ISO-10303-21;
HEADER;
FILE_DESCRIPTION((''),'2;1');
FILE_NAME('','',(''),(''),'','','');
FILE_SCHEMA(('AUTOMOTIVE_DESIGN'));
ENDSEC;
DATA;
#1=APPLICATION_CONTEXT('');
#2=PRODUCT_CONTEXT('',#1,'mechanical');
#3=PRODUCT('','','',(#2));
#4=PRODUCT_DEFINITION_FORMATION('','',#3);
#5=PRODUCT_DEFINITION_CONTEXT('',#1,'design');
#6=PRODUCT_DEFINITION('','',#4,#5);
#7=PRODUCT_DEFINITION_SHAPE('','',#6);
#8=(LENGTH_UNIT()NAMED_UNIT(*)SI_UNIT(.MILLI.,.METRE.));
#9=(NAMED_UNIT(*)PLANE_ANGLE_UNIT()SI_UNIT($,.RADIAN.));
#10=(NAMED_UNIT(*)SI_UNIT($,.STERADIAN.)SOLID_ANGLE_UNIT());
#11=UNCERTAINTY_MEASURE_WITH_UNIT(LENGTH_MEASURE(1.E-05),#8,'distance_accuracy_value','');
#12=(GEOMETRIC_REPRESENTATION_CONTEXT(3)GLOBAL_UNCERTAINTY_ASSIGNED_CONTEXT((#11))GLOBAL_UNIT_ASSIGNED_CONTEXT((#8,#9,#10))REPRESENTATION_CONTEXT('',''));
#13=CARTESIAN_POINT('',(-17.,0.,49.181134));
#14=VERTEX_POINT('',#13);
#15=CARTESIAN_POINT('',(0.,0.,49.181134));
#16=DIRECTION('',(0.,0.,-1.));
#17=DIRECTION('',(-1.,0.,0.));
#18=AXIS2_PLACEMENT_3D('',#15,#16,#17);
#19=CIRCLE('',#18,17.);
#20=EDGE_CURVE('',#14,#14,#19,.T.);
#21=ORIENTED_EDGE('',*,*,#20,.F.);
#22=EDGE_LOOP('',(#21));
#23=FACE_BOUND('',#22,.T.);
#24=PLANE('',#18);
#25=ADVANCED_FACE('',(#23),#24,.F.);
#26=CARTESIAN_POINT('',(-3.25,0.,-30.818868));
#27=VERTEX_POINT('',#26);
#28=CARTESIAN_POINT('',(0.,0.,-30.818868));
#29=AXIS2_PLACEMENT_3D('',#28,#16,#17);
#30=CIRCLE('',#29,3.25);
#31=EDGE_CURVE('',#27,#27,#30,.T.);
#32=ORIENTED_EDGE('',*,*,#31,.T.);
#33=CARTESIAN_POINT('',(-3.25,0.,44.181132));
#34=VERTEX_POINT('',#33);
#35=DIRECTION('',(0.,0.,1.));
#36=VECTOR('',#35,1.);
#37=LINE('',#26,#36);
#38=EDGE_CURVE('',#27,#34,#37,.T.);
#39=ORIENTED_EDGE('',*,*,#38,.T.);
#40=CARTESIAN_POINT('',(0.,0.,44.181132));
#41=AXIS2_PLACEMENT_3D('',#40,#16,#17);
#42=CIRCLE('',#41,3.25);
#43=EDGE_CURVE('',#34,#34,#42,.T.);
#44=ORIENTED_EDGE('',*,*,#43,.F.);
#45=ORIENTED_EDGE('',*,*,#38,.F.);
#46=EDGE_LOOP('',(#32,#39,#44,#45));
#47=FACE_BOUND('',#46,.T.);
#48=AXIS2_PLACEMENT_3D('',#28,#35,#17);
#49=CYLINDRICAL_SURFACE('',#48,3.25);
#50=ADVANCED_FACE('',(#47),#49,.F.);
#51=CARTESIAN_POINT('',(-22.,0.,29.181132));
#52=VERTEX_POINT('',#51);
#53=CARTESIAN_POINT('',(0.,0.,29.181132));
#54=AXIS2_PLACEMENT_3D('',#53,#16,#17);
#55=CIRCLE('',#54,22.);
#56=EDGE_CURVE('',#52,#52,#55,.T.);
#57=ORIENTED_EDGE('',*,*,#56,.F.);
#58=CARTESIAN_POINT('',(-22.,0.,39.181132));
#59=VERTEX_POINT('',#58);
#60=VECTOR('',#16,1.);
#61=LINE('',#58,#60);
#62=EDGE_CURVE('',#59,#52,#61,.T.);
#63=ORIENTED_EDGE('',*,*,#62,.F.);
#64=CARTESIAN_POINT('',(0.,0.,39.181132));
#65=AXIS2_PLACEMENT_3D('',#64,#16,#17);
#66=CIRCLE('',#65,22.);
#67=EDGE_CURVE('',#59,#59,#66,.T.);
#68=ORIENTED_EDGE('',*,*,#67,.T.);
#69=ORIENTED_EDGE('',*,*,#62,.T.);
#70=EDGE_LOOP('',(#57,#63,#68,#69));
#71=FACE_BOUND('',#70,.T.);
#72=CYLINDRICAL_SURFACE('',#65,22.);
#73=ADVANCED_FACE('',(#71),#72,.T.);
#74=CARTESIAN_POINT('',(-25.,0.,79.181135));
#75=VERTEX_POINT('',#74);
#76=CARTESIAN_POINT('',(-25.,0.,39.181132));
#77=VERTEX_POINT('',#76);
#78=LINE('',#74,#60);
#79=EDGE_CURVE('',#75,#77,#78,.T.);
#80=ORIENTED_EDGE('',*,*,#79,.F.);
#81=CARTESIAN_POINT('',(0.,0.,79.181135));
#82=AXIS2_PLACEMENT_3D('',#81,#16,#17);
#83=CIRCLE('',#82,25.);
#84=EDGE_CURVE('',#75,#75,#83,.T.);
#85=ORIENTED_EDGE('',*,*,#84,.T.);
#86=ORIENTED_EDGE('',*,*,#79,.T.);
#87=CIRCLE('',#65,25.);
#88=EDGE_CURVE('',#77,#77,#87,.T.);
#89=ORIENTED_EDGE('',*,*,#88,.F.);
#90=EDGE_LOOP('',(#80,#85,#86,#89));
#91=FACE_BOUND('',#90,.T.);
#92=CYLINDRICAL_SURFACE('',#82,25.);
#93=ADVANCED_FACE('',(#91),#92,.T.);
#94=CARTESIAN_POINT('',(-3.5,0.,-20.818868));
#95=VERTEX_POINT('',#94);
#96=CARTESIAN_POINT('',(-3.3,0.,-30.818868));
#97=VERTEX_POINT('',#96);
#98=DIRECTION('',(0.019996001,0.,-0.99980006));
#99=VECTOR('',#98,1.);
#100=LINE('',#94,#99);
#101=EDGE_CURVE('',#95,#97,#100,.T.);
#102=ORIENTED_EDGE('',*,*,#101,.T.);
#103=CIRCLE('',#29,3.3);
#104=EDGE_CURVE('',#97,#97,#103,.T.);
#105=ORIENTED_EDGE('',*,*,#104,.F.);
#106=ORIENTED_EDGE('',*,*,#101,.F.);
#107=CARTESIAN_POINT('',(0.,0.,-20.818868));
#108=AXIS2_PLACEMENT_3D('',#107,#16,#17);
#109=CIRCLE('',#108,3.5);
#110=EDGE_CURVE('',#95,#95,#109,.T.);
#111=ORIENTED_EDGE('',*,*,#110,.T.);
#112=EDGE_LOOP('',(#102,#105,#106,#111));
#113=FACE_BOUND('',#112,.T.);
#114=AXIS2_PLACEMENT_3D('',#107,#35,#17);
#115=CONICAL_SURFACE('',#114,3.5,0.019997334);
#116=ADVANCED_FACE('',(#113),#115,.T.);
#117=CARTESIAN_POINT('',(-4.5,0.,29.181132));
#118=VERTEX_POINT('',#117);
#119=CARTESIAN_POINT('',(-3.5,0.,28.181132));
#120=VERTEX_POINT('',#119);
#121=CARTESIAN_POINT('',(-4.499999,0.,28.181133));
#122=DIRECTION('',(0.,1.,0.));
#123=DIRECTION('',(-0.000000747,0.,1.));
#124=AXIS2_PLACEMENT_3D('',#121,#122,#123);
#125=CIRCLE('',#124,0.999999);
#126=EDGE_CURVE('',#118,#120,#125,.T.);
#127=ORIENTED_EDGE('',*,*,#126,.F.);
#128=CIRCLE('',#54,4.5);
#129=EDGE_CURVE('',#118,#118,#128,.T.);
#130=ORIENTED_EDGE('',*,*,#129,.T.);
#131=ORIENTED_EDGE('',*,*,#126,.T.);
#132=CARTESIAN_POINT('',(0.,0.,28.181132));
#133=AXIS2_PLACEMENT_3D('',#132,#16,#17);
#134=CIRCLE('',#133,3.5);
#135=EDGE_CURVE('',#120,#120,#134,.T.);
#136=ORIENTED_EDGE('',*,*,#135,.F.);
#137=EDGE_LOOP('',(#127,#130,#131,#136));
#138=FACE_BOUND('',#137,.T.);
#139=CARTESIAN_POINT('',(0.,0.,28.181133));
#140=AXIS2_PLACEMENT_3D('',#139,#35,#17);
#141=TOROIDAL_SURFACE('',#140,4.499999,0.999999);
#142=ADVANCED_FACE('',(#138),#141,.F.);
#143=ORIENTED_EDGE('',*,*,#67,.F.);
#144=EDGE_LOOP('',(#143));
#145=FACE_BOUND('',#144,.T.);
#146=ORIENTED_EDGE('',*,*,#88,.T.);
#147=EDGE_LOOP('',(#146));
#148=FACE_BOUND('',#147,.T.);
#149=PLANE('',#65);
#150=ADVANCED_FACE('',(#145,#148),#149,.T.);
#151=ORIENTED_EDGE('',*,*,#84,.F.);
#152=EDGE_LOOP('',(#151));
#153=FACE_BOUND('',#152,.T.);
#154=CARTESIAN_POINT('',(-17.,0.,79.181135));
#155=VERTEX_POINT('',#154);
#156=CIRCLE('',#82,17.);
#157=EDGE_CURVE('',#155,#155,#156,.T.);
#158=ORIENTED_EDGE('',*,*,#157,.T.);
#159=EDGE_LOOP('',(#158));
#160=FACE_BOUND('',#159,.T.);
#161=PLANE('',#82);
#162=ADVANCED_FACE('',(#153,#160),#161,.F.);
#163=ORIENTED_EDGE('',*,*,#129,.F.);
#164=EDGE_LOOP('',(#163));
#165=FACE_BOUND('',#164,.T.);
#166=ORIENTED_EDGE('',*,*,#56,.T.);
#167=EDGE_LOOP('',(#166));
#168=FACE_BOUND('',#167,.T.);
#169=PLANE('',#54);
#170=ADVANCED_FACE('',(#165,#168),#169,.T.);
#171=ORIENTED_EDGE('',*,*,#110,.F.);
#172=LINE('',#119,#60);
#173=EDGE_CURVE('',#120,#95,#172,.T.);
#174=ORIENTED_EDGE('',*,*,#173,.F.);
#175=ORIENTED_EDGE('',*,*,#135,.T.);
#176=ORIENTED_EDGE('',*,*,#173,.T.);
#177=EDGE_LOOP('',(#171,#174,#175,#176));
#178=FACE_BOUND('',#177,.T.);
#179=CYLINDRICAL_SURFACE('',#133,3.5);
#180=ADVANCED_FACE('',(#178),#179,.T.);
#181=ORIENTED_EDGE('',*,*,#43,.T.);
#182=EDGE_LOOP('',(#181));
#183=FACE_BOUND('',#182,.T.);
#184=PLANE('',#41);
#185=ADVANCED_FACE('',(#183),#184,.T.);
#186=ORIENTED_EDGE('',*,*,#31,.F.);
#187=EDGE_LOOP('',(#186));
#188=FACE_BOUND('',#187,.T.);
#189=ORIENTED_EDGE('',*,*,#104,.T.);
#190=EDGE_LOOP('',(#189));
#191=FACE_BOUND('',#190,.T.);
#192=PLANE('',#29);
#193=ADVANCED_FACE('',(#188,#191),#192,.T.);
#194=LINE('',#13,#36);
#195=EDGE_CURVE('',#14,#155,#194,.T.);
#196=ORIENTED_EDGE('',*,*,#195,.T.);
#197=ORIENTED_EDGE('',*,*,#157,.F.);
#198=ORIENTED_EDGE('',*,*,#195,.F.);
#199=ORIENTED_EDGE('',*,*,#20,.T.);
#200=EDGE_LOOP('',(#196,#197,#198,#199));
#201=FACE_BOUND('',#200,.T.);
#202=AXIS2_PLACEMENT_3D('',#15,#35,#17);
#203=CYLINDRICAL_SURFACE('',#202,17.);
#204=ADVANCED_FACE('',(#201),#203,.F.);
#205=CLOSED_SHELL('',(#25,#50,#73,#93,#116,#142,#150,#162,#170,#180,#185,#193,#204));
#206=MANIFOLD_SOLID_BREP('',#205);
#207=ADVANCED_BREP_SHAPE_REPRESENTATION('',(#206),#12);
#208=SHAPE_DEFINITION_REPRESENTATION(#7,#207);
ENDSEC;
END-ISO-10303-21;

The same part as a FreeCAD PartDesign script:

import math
import FreeCAD as App
import Part
import Sketcher
from FreeCAD import Vector


def edges_at(feature, points):
    """Names of the edges that pass closest to the given points."""
    edges = feature.Shape.Edges
    near = lambda p: min(range(len(edges)), key=lambda i: edges[i].distToShape(Part.Vertex(*p))[0])
    return sorted({f"Edge{near(p) + 1}" for p in points})

doc = App.newDocument("Part")
params = doc.addObject("Spreadsheet::Sheet", "Params")
for row, (alias, value) in enumerate([
    ("sketch1_radius", "0.999999 mm"),
    ("sketch1_width", "17 mm"),
    ("sketch1_width2", "8 mm"),
    ("sketch1_width3", "3 mm"),
    ("sketch1_height", "30.000001 mm"),
    ("revolution_angle", "360 deg"),
    ("chamfer_size", "10 mm"),
    ("chamfer_size2", "0.2 mm"),
], start=1):
    params.set(f"A{row}", alias)
    params.set(f"B{row}", "=" + value)
    params.setAlias(f"B{row}", alias)

body = doc.addObject("PartDesign::Body", "Body")

# Sketch on XZ plane
sketch1 = body.newObject("Sketcher::SketchObject", "Sketch")
sketch1.AttachmentSupport = (doc.getObject("XZ_Plane"), [""])
sketch1.MapMode = "FlatFace"
sketch1.addGeometry(Part.LineSegment(Vector(0, 44.18, 0), Vector(0, 49.18, 0)), False)
sketch1.addGeometry(Part.LineSegment(Vector(0, 49.18, 0), Vector(-17, 49.18, 0)), False)
sketch1.addGeometry(Part.LineSegment(Vector(-17, 49.18, 0), Vector(-17, 79.18, 0)), False)
sketch1.addGeometry(Part.LineSegment(Vector(-17, 79.18, 0), Vector(-25, 79.18, 0)), False)
sketch1.addGeometry(Part.LineSegment(Vector(-25, 79.18, 0), Vector(-25, 39.18, 0)), False)
sketch1.addGeometry(Part.LineSegment(Vector(-25, 39.18, 0), Vector(-22, 39.18, 0)), False)
sketch1.addGeometry(Part.LineSegment(Vector(-22, 39.18, 0), Vector(-22, 29.18, 0)), False)
sketch1.addGeometry(Part.LineSegment(Vector(-22, 29.18, 0), Vector(-4.5, 29.18, 0)), False)
sketch1.addGeometry(Part.ArcOfCircle(Part.Circle(Vector(-4.5, 28.18, 0), Vector(0, 0, 1), 1), math.radians(0), math.radians(90)), False)
sketch1.addGeometry(Part.LineSegment(Vector(-3.5, 28.18, 0), Vector(-3.5, -30.82, 0)), False)
sketch1.addGeometry(Part.LineSegment(Vector(-3.5, -30.82, 0), Vector(-3.25, -30.82, 0)), False)
sketch1.addGeometry(Part.LineSegment(Vector(-3.25, -30.82, 0), Vector(-3.25, 44.18, 0)), False)
sketch1.addGeometry(Part.LineSegment(Vector(-3.25, 44.18, 0), Vector(0, 44.18, 0)), False)
sketch1.addConstraint(Sketcher.Constraint("Coincident", 0, 2, 1, 1))
sketch1.addConstraint(Sketcher.Constraint("Coincident", 1, 2, 2, 1))
sketch1.addConstraint(Sketcher.Constraint("Coincident", 2, 2, 3, 1))
sketch1.addConstraint(Sketcher.Constraint("Coincident", 3, 2, 4, 1))
sketch1.addConstraint(Sketcher.Constraint("Coincident", 4, 2, 5, 1))
sketch1.addConstraint(Sketcher.Constraint("Coincident", 5, 2, 6, 1))
sketch1.addConstraint(Sketcher.Constraint("Coincident", 6, 2, 7, 1))
sketch1.addConstraint(Sketcher.Constraint("Tangent", 7, 2, 8, 2))
sketch1.addConstraint(Sketcher.Constraint("Tangent", 8, 1, 9, 1))
sketch1.addConstraint(Sketcher.Constraint("Coincident", 9, 2, 10, 1))
sketch1.addConstraint(Sketcher.Constraint("Coincident", 10, 2, 11, 1))
sketch1.addConstraint(Sketcher.Constraint("Coincident", 11, 2, 12, 1))
sketch1.addConstraint(Sketcher.Constraint("Coincident", 12, 2, 0, 1))
sketch1.addConstraint(Sketcher.Constraint("Vertical", 0))
sketch1.addConstraint(Sketcher.Constraint("Horizontal", 1))
sketch1.addConstraint(Sketcher.Constraint("Vertical", 2))
sketch1.addConstraint(Sketcher.Constraint("Horizontal", 3))
sketch1.addConstraint(Sketcher.Constraint("Vertical", 4))
sketch1.addConstraint(Sketcher.Constraint("Horizontal", 5))
sketch1.addConstraint(Sketcher.Constraint("Vertical", 6))
sketch1.addConstraint(Sketcher.Constraint("Horizontal", 7))
sketch1.addConstraint(Sketcher.Constraint("Vertical", 9))
sketch1.addConstraint(Sketcher.Constraint("Horizontal", 10))
sketch1.addConstraint(Sketcher.Constraint("Vertical", 11))
sketch1.addConstraint(Sketcher.Constraint("Horizontal", 12))
sketch1.addConstraint(Sketcher.Constraint("PointOnObject", 0, 2, -2))
sketch1.addConstraint(Sketcher.Constraint("Radius", 8, 0.999999))
sketch1.addConstraint(Sketcher.Constraint("DistanceX", 1, 2, 1, 1, 17.0))
sketch1.addConstraint(Sketcher.Constraint("DistanceX", 3, 2, 3, 1, 8.0))
sketch1.addConstraint(Sketcher.Constraint("DistanceX", 5, 1, 5, 2, 3.0))
sketch1.addConstraint(Sketcher.Constraint("DistanceY", 2, 1, 2, 2, 30.000001))
sketch1.addConstraint(Sketcher.Constraint("DistanceY", 6, 2, 6, 1, 10.0))
sketch1.addConstraint(Sketcher.Constraint("DistanceY", 9, 2, 9, 1, 59.0))
sketch1.addConstraint(Sketcher.Constraint("DistanceY", 11, 1, 11, 2, 75.0))
sketch1.addConstraint(Sketcher.Constraint("DistanceX", 7, 1, 7, 2, 17.5))
sketch1.addConstraint(Sketcher.Constraint("DistanceY", 8, 3, 0, 2, 21.000001))
sketch1.addConstraint(Sketcher.Constraint("DistanceX", 10, 1, 10, 2, 0.25))
sketch1.addConstraint(Sketcher.Constraint("DistanceY", -1, 1, 4, 2, 39.181132))
sketch1.setExpression("Constraints[26]", "Params.sketch1_radius")
sketch1.setExpression("Constraints[27]", "Params.sketch1_width")
sketch1.setExpression("Constraints[28]", "Params.sketch1_width2")
sketch1.setExpression("Constraints[29]", "Params.sketch1_width3")
sketch1.setExpression("Constraints[30]", "Params.sketch1_height")
revolution = body.newObject("PartDesign::Revolution", "Revolution")
revolution.Profile = sketch1
revolution.ReferenceAxis = (sketch1, ["V_Axis"])
revolution.setExpression("Angle", "Params.revolution_angle")
doc.recompute()

chamfer = body.newObject("PartDesign::Chamfer", "Chamfer")
chamfer.Base = (revolution, edges_at(revolution, [(3.5, 0, -30.819)]))
chamfer.ChamferType = "Two distances"
chamfer.setExpression("Size", "Params.chamfer_size")
chamfer.setExpression("Size2", "Params.chamfer_size2")

doc.recompute()
